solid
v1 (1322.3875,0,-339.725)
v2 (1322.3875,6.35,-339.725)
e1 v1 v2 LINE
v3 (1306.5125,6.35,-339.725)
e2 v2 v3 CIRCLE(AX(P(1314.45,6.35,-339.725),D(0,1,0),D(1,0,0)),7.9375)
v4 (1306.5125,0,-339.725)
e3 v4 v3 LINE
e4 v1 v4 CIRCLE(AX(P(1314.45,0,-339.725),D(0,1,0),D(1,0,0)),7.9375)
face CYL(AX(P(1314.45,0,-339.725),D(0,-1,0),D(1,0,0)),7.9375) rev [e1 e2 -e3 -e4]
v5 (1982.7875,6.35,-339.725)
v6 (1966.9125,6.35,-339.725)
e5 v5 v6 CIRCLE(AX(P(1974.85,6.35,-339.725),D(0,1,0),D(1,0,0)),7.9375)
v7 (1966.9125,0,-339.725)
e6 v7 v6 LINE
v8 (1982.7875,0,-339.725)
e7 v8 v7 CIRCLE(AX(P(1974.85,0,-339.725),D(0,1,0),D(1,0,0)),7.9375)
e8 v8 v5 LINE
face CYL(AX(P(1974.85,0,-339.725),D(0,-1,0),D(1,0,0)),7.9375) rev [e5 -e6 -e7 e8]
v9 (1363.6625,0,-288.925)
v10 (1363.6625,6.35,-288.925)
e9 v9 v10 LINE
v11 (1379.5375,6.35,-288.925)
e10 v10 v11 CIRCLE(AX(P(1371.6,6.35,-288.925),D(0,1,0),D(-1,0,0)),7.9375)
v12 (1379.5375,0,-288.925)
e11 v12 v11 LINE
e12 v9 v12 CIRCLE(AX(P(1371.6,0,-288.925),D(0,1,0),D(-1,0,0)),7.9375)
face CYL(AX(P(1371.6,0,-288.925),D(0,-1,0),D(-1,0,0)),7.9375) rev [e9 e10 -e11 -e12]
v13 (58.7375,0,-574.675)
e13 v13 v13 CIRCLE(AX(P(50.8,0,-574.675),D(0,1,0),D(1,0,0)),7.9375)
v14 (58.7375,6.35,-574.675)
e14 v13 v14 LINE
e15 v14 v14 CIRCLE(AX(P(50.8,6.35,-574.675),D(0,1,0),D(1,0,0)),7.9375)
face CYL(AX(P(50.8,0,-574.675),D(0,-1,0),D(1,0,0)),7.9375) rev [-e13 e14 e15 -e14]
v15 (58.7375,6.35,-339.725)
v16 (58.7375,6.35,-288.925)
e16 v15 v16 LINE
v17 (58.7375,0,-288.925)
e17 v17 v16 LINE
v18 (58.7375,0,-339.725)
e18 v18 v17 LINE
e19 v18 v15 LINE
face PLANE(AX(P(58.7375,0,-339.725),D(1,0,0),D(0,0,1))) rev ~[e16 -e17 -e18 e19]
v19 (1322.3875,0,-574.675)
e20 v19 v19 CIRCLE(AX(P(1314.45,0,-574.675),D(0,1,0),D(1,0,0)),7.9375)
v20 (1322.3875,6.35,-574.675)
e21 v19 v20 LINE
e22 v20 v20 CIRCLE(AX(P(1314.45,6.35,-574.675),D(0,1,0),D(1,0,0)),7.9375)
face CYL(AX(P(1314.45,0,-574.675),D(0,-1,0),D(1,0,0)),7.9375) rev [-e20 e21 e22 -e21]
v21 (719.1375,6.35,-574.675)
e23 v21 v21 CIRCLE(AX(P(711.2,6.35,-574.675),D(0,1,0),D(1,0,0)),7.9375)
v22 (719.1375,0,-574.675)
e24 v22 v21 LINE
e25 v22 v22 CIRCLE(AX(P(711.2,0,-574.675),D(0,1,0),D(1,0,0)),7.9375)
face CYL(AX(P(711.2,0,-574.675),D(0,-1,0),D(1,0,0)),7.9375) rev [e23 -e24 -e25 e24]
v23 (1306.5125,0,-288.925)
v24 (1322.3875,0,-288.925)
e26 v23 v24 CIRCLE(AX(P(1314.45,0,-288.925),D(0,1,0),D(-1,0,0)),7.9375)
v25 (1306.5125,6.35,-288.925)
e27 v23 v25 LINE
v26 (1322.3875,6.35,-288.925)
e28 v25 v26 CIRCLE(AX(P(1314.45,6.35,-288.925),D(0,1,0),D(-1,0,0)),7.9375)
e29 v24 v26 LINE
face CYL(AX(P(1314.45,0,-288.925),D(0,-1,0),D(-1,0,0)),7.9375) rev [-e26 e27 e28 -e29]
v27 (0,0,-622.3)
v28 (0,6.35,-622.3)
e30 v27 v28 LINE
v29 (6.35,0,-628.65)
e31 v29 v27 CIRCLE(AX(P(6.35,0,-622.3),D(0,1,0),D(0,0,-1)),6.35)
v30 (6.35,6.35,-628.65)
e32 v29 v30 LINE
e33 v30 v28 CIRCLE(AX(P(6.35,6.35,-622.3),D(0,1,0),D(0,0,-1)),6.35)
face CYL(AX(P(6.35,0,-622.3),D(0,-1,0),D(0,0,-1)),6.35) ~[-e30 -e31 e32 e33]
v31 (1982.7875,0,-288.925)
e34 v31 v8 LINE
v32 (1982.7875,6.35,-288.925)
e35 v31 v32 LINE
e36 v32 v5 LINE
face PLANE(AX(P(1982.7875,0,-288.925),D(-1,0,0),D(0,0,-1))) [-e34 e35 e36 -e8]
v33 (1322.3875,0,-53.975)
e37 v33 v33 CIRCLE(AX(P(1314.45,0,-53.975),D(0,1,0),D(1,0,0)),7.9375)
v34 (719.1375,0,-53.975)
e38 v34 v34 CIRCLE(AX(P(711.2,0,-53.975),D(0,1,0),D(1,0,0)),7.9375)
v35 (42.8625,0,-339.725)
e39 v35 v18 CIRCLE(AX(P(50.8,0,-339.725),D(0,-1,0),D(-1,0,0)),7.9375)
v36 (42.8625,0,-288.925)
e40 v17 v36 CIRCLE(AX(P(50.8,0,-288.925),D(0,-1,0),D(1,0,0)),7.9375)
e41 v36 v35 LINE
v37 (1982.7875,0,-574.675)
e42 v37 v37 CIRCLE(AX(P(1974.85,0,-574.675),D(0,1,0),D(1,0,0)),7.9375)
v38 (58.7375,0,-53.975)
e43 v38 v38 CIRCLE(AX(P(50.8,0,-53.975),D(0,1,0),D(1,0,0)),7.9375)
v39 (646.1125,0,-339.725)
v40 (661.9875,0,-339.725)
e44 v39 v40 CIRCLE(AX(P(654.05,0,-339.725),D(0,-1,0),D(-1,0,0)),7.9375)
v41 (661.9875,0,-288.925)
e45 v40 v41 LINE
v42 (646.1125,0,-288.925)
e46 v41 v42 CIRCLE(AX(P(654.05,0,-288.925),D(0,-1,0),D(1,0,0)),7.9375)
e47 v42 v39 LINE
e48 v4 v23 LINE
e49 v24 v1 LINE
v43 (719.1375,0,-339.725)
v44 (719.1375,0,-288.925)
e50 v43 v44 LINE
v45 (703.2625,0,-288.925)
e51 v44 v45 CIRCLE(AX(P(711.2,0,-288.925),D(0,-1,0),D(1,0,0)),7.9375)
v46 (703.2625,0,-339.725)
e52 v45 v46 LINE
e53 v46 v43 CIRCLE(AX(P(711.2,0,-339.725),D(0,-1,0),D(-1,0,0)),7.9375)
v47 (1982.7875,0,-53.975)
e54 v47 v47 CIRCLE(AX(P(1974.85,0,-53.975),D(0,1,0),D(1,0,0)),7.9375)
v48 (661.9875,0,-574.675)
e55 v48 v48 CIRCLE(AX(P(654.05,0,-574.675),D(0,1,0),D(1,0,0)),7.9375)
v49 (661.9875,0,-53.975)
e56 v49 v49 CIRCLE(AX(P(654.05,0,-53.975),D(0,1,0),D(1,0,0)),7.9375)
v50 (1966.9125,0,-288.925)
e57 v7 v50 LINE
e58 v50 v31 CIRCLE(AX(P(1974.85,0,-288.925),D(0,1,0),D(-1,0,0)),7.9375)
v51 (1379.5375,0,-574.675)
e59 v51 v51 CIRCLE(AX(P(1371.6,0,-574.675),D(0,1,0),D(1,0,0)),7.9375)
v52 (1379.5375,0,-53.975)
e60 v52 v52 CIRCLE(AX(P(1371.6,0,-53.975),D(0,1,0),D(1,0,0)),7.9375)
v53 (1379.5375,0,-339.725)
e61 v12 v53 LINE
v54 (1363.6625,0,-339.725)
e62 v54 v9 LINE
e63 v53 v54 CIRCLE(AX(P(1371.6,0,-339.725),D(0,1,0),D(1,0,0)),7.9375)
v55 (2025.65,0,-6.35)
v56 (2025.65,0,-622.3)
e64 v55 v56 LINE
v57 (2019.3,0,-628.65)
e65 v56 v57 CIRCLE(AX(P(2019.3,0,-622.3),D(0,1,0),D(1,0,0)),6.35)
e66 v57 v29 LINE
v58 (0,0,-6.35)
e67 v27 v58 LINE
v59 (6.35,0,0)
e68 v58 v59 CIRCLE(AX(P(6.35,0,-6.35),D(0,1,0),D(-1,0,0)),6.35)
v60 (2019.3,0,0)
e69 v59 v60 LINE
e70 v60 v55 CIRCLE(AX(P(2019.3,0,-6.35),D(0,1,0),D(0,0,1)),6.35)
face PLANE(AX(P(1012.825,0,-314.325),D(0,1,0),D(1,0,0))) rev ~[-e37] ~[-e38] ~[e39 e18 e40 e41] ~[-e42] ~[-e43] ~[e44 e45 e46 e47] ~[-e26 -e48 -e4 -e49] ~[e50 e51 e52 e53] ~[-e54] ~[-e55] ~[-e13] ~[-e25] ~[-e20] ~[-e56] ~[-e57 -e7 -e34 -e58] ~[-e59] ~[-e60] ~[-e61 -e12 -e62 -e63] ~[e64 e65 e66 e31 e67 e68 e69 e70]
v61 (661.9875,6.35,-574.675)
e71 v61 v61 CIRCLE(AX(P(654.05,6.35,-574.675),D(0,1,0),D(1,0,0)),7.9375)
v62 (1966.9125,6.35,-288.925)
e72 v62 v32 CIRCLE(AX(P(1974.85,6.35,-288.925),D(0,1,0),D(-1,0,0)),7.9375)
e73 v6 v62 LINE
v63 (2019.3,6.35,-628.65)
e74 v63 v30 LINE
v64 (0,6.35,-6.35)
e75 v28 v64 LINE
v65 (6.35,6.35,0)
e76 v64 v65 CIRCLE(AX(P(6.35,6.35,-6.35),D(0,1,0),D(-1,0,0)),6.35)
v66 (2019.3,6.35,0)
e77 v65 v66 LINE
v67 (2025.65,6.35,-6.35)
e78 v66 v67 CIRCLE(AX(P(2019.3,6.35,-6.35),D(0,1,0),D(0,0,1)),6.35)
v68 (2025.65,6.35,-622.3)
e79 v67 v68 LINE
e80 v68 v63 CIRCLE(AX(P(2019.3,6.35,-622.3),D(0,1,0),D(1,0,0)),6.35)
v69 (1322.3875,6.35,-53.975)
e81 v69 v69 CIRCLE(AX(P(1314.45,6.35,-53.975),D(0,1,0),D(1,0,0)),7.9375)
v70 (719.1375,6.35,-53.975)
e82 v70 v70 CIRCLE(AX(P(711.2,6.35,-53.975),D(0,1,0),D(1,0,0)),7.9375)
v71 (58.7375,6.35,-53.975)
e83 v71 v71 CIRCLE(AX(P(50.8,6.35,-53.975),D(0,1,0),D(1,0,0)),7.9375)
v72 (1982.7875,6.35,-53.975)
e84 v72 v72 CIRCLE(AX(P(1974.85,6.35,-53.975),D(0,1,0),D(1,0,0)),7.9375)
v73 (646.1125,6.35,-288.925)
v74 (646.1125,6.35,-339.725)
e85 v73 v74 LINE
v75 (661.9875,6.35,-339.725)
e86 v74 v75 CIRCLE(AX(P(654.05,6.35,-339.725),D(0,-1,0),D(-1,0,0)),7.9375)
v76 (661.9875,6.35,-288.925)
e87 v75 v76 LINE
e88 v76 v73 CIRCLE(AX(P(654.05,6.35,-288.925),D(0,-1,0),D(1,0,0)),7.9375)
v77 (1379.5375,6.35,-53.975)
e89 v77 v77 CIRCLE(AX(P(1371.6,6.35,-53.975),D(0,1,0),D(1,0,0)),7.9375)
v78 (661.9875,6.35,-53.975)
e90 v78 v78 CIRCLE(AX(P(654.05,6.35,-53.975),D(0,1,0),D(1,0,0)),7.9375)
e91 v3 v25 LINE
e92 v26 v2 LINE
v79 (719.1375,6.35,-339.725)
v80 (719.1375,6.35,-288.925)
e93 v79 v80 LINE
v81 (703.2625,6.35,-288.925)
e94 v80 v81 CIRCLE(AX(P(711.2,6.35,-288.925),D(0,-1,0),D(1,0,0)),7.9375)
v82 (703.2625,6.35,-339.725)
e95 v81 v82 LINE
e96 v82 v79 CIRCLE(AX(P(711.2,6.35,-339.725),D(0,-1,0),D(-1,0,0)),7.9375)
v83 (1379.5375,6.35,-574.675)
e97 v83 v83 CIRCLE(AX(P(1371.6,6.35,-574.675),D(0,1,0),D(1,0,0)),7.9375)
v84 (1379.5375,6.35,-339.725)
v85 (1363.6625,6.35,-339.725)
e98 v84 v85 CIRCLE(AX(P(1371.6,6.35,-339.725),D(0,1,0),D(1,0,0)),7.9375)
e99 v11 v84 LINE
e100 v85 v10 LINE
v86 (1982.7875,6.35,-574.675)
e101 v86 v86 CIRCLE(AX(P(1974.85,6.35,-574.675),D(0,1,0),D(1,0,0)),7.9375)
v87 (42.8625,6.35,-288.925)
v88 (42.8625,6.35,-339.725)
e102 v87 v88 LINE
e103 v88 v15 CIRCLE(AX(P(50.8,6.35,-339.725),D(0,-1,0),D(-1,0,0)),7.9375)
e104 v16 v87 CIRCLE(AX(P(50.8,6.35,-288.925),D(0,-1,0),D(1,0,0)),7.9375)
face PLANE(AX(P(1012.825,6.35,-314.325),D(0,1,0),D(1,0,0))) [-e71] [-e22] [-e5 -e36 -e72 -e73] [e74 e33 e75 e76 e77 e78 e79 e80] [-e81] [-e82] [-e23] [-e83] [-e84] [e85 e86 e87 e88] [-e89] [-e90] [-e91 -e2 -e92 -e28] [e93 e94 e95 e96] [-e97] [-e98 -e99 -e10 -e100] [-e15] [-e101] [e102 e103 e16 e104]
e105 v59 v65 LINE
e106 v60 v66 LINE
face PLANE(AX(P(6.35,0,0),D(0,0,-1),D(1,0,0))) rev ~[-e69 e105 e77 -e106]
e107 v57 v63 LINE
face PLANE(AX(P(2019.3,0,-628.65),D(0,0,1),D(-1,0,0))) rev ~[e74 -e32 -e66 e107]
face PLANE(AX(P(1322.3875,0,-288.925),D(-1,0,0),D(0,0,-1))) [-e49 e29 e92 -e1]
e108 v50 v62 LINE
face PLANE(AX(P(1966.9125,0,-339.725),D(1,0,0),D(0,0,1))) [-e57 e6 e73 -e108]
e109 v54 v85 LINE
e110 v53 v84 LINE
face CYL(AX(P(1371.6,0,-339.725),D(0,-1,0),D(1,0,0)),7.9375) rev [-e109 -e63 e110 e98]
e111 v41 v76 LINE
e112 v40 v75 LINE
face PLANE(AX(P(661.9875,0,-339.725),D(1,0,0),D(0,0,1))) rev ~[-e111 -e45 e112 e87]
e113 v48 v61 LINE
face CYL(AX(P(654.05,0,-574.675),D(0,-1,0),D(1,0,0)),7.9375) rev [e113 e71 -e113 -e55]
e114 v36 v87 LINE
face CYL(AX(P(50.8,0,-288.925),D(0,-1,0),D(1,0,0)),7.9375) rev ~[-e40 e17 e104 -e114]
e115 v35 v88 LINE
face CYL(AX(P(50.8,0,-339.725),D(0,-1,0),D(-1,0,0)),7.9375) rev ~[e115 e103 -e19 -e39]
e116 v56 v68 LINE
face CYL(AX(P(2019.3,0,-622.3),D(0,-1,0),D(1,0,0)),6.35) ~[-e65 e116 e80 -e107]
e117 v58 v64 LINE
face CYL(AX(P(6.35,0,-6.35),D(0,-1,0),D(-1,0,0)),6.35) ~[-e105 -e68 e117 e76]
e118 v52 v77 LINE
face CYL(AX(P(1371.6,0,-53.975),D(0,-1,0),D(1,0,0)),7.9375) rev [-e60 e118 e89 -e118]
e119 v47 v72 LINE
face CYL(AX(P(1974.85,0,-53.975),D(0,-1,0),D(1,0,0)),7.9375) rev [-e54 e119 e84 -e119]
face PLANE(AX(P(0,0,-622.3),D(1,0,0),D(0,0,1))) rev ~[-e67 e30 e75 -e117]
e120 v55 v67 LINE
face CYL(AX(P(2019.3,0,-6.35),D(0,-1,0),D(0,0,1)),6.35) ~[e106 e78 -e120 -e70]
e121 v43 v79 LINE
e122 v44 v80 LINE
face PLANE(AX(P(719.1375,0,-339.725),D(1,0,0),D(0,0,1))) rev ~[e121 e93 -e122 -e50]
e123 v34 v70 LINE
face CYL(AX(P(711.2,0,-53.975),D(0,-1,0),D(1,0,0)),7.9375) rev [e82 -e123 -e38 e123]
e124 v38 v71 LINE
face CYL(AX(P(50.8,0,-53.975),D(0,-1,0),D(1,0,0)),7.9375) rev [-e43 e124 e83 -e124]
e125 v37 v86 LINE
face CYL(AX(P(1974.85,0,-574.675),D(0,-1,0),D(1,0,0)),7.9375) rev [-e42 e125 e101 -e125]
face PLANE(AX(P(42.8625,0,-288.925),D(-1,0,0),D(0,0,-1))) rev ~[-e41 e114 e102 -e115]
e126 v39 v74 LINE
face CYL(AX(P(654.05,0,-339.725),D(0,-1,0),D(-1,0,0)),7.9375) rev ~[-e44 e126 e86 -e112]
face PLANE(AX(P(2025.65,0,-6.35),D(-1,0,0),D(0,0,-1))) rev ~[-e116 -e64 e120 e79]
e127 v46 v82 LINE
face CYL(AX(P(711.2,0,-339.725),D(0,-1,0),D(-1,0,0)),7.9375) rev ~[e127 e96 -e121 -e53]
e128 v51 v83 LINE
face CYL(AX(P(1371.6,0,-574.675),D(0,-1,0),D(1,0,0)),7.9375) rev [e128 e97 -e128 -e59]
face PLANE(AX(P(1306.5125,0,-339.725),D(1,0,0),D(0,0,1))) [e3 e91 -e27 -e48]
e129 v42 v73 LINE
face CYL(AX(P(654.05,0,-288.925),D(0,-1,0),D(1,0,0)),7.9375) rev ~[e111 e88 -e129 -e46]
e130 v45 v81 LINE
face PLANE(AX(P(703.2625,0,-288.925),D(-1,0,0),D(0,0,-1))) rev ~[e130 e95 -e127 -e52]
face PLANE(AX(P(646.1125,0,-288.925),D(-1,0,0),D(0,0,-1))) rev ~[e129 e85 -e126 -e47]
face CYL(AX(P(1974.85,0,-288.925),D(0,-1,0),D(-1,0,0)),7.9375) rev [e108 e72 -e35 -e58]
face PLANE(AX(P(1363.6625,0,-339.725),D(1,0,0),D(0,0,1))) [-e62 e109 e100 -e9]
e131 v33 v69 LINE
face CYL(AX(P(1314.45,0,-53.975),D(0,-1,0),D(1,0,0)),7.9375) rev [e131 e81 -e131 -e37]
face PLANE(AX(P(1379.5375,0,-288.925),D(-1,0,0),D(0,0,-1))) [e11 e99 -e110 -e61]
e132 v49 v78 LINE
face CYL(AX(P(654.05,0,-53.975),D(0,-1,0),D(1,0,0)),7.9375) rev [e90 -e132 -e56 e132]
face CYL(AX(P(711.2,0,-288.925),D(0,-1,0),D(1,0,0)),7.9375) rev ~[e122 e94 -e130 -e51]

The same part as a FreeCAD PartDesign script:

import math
import FreeCAD as App
import Part
import Sketcher
Q = App.Units.Quantity

doc = App.newDocument("Part")
body = doc.addObject("PartDesign::Body", "Body")

# Sketch on XZ plane
sketch1 = body.newObject("Sketcher::SketchObject", "Sketch")
sketch1.AttachmentSupport = (doc.getObject("XZ_Plane"), [""])
sketch1.MapMode = "FlatFace"
sketch1.addGeometry([
    Part.LineSegment(App.Vector(6, 0, 0), App.Vector(2019, 0, 0)),  # 0
    Part.ArcOfCircle(Part.Circle(App.Vector(2019, -6, 0), App.Vector(0, 0, 1), 6), math.radians(0), math.radians(90)),  # 1
    Part.LineSegment(App.Vector(2026, -6, 0), App.Vector(2026, -622, 0)),  # 2
    Part.ArcOfCircle(Part.Circle(App.Vector(2019, -622, 0), App.Vector(0, 0, 1), 6), math.radians(-90), math.radians(0)),  # 3
    Part.LineSegment(App.Vector(2019, -629, 0), App.Vector(6, -629, 0)),  # 4
    Part.ArcOfCircle(Part.Circle(App.Vector(6, -622, 0), App.Vector(0, 0, 1), 6), math.radians(180), math.radians(270)),  # 5
    Part.LineSegment(App.Vector(0, -622, 0), App.Vector(0, -6, 0)),  # 6
    Part.ArcOfCircle(Part.Circle(App.Vector(6, -6, 0), App.Vector(0, 0, 1), 6), math.radians(90), math.radians(180)),  # 7
    Part.Circle(App.Vector(51, -54, 0), App.Vector(0, 0, 1), 8),  # 8
    Part.Circle(App.Vector(654, -54, 0), App.Vector(0, 0, 1), 8),  # 9
    Part.Circle(App.Vector(711, -54, 0), App.Vector(0, 0, 1), 8),  # 10
    Part.Circle(App.Vector(1314, -54, 0), App.Vector(0, 0, 1), 8),  # 11
    Part.Circle(App.Vector(1372, -54, 0), App.Vector(0, 0, 1), 8),  # 12
    Part.Circle(App.Vector(1975, -54, 0), App.Vector(0, 0, 1), 8),  # 13
    Part.ArcOfCircle(Part.Circle(App.Vector(51, -340, 0), App.Vector(0, 0, 1), 8), math.radians(180), math.radians(360)),  # 14
    Part.LineSegment(App.Vector(59, -340, 0), App.Vector(59, -289, 0)),  # 15
    Part.ArcOfCircle(Part.Circle(App.Vector(51, -289, 0), App.Vector(0, 0, 1), 8), math.radians(0), math.radians(180)),  # 16
    Part.LineSegment(App.Vector(43, -289, 0), App.Vector(43, -340, 0)),  # 17
    Part.ArcOfCircle(Part.Circle(App.Vector(654, -340, 0), App.Vector(0, 0, 1), 8), math.radians(180), math.radians(360)),  # 18
    Part.LineSegment(App.Vector(662, -340, 0), App.Vector(662, -289, 0)),  # 19
    Part.ArcOfCircle(Part.Circle(App.Vector(654, -289, 0), App.Vector(0, 0, 1), 8), math.radians(0), math.radians(180)),  # 20
    Part.LineSegment(App.Vector(646, -289, 0), App.Vector(646, -340, 0)),  # 21
    Part.ArcOfCircle(Part.Circle(App.Vector(711, -340, 0), App.Vector(0, 0, 1), 8), math.radians(180), math.radians(360)),  # 22
    Part.LineSegment(App.Vector(719, -340, 0), App.Vector(719, -289, 0)),  # 23
    Part.ArcOfCircle(Part.Circle(App.Vector(711, -289, 0), App.Vector(0, 0, 1), 8), math.radians(0), math.radians(180)),  # 24
    Part.LineSegment(App.Vector(703, -289, 0), App.Vector(703, -340, 0)),  # 25
    Part.Circle(App.Vector(51, -575, 0), App.Vector(0, 0, 1), 8),  # 26
    Part.Circle(App.Vector(654, -575, 0), App.Vector(0, 0, 1), 8),  # 27
    Part.Circle(App.Vector(711, -575, 0), App.Vector(0, 0, 1), 8),  # 28
    Part.LineSegment(App.Vector(1307, -289, 0), App.Vector(1307, -340, 0)),  # 29
    Part.ArcOfCircle(Part.Circle(App.Vector(1314, -340, 0), App.Vector(0, 0, 1), 8), math.radians(180), math.radians(360)),  # 30
    Part.LineSegment(App.Vector(1322, -340, 0), App.Vector(1322, -289, 0)),  # 31
    Part.ArcOfCircle(Part.Circle(App.Vector(1314, -289, 0), App.Vector(0, 0, 1), 8), math.radians(0), math.radians(180)),  # 32
    Part.LineSegment(App.Vector(1364, -289, 0), App.Vector(1364, -340, 0)),  # 33
    Part.ArcOfCircle(Part.Circle(App.Vector(1372, -340, 0), App.Vector(0, 0, 1), 8), math.radians(180), math.radians(360)),  # 34
    Part.LineSegment(App.Vector(1380, -340, 0), App.Vector(1380, -289, 0)),  # 35
    Part.ArcOfCircle(Part.Circle(App.Vector(1372, -289, 0), App.Vector(0, 0, 1), 8), math.radians(0), math.radians(180)),  # 36
    Part.LineSegment(App.Vector(1967, -289, 0), App.Vector(1967, -340, 0)),  # 37
    Part.ArcOfCircle(Part.Circle(App.Vector(1975, -340, 0), App.Vector(0, 0, 1), 8), math.radians(180), math.radians(360)),  # 38
    Part.LineSegment(App.Vector(1983, -340, 0), App.Vector(1983, -289, 0)),  # 39
    Part.ArcOfCircle(Part.Circle(App.Vector(1975, -289, 0), App.Vector(0, 0, 1), 8), math.radians(0), math.radians(180)),  # 40
    Part.Circle(App.Vector(1314, -575, 0), App.Vector(0, 0, 1), 8),  # 41
    Part.Circle(App.Vector(1372, -575, 0), App.Vector(0, 0, 1), 8),  # 42
    Part.Circle(App.Vector(1975, -575, 0), App.Vector(0, 0, 1), 8),  # 43
], False)
sketch1.addConstraint([
    Sketcher.Constraint("Tangent", 0, 2, 1, 2),
    Sketcher.Constraint("Tangent", 1, 1, 2, 1),
    Sketcher.Constraint("Tangent", 2, 2, 3, 2),
    Sketcher.Constraint("Tangent", 3, 1, 4, 1),
    Sketcher.Constraint("Tangent", 4, 2, 5, 2),
    Sketcher.Constraint("Tangent", 5, 1, 6, 1),
    Sketcher.Constraint("Tangent", 6, 2, 7, 2),
    Sketcher.Constraint("Tangent", 7, 1, 0, 1),
    Sketcher.Constraint("Tangent", 14, 2, 15, 1),
    Sketcher.Constraint("Tangent", 15, 2, 16, 1),
    Sketcher.Constraint("Tangent", 16, 2, 17, 1),
    Sketcher.Constraint("Tangent", 17, 2, 14, 1),
    Sketcher.Constraint("Tangent", 18, 2, 19, 1),
    Sketcher.Constraint("Tangent", 19, 2, 20, 1),
    Sketcher.Constraint("Tangent", 20, 2, 21, 1),
    Sketcher.Constraint("Tangent", 21, 2, 18, 1),
    Sketcher.Constraint("Tangent", 22, 2, 23, 1),
    Sketcher.Constraint("Tangent", 23, 2, 24, 1),
    Sketcher.Constraint("Tangent", 24, 2, 25, 1),
    Sketcher.Constraint("Tangent", 25, 2, 22, 1),
    Sketcher.Constraint("Tangent", 29, 2, 30, 1),
    Sketcher.Constraint("Tangent", 30, 2, 31, 1),
    Sketcher.Constraint("Tangent", 31, 2, 32, 1),
    Sketcher.Constraint("Tangent", 32, 2, 29, 1),
    Sketcher.Constraint("Tangent", 33, 2, 34, 1),
    Sketcher.Constraint("Tangent", 34, 2, 35, 1),
    Sketcher.Constraint("Tangent", 35, 2, 36, 1),
    Sketcher.Constraint("Tangent", 36, 2, 33, 1),
    Sketcher.Constraint("Tangent", 37, 2, 38, 1),
    Sketcher.Constraint("Tangent", 38, 2, 39, 1),
    Sketcher.Constraint("Tangent", 39, 2, 40, 1),
    Sketcher.Constraint("Tangent", 40, 2, 37, 1),
    Sketcher.Constraint("Horizontal", 0),
    Sketcher.Constraint("Vertical", 2),
    Sketcher.Constraint("Horizontal", 4),
    Sketcher.Constraint("Vertical", 6),
    Sketcher.Constraint("Vertical", 15),
    Sketcher.Constraint("Vertical", 17),
    Sketcher.Constraint("Vertical", 19),
    Sketcher.Constraint("Vertical", 21),
    Sketcher.Constraint("Vertical", 23),
    Sketcher.Constraint("Vertical", 25),
    Sketcher.Constraint("Vertical", 29),
    Sketcher.Constraint("Vertical", 31),
    Sketcher.Constraint("Vertical", 33),
    Sketcher.Constraint("Vertical", 35),
    Sketcher.Constraint("Vertical", 37),
    Sketcher.Constraint("Vertical", 39),
    Sketcher.Constraint("Equal", 1, 3),
    Sketcher.Constraint("Equal", 3, 5),
    Sketcher.Constraint("Equal", 5, 7),
    Sketcher.Constraint("Equal", 8, 9),
    Sketcher.Constraint("Equal", 9, 10),
    Sketcher.Constraint("Equal", 10, 11),
    Sketcher.Constraint("Equal", 11, 12),
    Sketcher.Constraint("Equal", 12, 13),
    Sketcher.Constraint("Equal", 13, 14),
    Sketcher.Constraint("Equal", 16, 18),
    Sketcher.Constraint("Equal", 20, 22),
    Sketcher.Constraint("Equal", 24, 26),
    Sketcher.Constraint("Equal", 26, 27),
    Sketcher.Constraint("Equal", 27, 28),
    Sketcher.Constraint("Equal", 28, 30),
    Sketcher.Constraint("Equal", 32, 34),
    Sketcher.Constraint("Equal", 36, 38),
    Sketcher.Constraint("Equal", 40, 41),
    Sketcher.Constraint("Equal", 41, 42),
    Sketcher.Constraint("Equal", 42, 43),
    Sketcher.Constraint("PointOnObject", 0, 2, -1),
    Sketcher.Constraint("PointOnObject", 5, 1, -2),
    Sketcher.Constraint("Horizontal", 8, 3, 9, 3),
    Sketcher.Constraint("Horizontal", 9, 3, 10, 3),
    Sketcher.Constraint("Horizontal", 10, 3, 11, 3),
    Sketcher.Constraint("Horizontal", 11, 3, 12, 3),
    Sketcher.Constraint("Horizontal", 12, 3, 13, 3),
    Sketcher.Constraint("Horizontal", 14, 3, 18, 3),
    Sketcher.Constraint("Horizontal", 16, 3, 20, 3),
    Sketcher.Constraint("Horizontal", 18, 3, 22, 3),
    Sketcher.Constraint("Horizontal", 20, 3, 24, 3),
    Sketcher.Constraint("Horizontal", 26, 3, 27, 3),
    Sketcher.Constraint("Horizontal", 27, 3, 28, 3),
    Sketcher.Constraint("Horizontal", 22, 3, 30, 3),
    Sketcher.Constraint("Horizontal", 24, 3, 32, 3),
    Sketcher.Constraint("Horizontal", 30, 3, 34, 3),
    Sketcher.Constraint("Horizontal", 32, 3, 36, 3),
    Sketcher.Constraint("Horizontal", 34, 3, 38, 3),
    Sketcher.Constraint("Horizontal", 36, 3, 40, 3),
    Sketcher.Constraint("Horizontal", 28, 3, 41, 3),
    Sketcher.Constraint("Horizontal", 41, 3, 42, 3),
    Sketcher.Constraint("Horizontal", 42, 3, 43, 3),
    Sketcher.Constraint("Vertical", 8, 3, 14, 3),
    Sketcher.Constraint("Vertical", 9, 3, 18, 3),
    Sketcher.Constraint("Vertical", 10, 3, 22, 3),
    Sketcher.Constraint("Vertical", 16, 3, 26, 3),
    Sketcher.Constraint("Vertical", 20, 3, 27, 3),
    Sketcher.Constraint("Vertical", 24, 3, 28, 3),
    Sketcher.Constraint("Vertical", 11, 3, 30, 3),
    Sketcher.Constraint("Vertical", 12, 3, 34, 3),
    Sketcher.Constraint("Vertical", 13, 3, 38, 3),
    Sketcher.Constraint("Vertical", 32, 3, 41, 3),
    Sketcher.Constraint("Vertical", 36, 3, 42, 3),
    Sketcher.Constraint("Vertical", 40, 3, 43, 3),
    Sketcher.Constraint("DistanceY", 15, 1, 15, 2, Q("2 in")),
    Sketcher.Constraint("Radius", 1, Q("0.25 in")),
    Sketcher.Constraint("Diameter", 8, Q("0.625 in")),
    Sketcher.Constraint("DistanceX", -1, 1, 8, 3, Q("2 in")),
    Sketcher.Constraint("DistanceX", -1, 1, 10, 3, Q("28 in")),
    Sketcher.Constraint("DistanceX", -1, 1, 12, 3, Q("54 in")),
    Sketcher.Constraint("DistanceX", 9, 3, 11, 3, Q("26 in")),
    Sketcher.Constraint("DistanceX", 11, 3, 13, 3, Q("26 in")),
    Sketcher.Constraint("DistanceX", 13, 3, 1, 1, Q("2 in")),
    Sketcher.Constraint("DistanceX", 0, 1, 0, 2, Q("79.25 in")),
    Sketcher.Constraint("DistanceY", 2, 2, 2, 1, Q("24.25 in")),
    Sketcher.Constraint("DistanceY", 26, 3, 8, 3, Q("20.5 in")),
    Sketcher.Constraint("DistanceY", 14, 3, 8, 3, Q("11.25 in")),
    Sketcher.Constraint("DistanceY", 8, 3, -1, 1, Q("2.125 in")),
])
pad1 = body.newObject("PartDesign::Pad", "Pad")
pad1.Profile = sketch1
pad1.Length = Q("0.25 in")
pad1.Reversed = True

doc.recompute()
